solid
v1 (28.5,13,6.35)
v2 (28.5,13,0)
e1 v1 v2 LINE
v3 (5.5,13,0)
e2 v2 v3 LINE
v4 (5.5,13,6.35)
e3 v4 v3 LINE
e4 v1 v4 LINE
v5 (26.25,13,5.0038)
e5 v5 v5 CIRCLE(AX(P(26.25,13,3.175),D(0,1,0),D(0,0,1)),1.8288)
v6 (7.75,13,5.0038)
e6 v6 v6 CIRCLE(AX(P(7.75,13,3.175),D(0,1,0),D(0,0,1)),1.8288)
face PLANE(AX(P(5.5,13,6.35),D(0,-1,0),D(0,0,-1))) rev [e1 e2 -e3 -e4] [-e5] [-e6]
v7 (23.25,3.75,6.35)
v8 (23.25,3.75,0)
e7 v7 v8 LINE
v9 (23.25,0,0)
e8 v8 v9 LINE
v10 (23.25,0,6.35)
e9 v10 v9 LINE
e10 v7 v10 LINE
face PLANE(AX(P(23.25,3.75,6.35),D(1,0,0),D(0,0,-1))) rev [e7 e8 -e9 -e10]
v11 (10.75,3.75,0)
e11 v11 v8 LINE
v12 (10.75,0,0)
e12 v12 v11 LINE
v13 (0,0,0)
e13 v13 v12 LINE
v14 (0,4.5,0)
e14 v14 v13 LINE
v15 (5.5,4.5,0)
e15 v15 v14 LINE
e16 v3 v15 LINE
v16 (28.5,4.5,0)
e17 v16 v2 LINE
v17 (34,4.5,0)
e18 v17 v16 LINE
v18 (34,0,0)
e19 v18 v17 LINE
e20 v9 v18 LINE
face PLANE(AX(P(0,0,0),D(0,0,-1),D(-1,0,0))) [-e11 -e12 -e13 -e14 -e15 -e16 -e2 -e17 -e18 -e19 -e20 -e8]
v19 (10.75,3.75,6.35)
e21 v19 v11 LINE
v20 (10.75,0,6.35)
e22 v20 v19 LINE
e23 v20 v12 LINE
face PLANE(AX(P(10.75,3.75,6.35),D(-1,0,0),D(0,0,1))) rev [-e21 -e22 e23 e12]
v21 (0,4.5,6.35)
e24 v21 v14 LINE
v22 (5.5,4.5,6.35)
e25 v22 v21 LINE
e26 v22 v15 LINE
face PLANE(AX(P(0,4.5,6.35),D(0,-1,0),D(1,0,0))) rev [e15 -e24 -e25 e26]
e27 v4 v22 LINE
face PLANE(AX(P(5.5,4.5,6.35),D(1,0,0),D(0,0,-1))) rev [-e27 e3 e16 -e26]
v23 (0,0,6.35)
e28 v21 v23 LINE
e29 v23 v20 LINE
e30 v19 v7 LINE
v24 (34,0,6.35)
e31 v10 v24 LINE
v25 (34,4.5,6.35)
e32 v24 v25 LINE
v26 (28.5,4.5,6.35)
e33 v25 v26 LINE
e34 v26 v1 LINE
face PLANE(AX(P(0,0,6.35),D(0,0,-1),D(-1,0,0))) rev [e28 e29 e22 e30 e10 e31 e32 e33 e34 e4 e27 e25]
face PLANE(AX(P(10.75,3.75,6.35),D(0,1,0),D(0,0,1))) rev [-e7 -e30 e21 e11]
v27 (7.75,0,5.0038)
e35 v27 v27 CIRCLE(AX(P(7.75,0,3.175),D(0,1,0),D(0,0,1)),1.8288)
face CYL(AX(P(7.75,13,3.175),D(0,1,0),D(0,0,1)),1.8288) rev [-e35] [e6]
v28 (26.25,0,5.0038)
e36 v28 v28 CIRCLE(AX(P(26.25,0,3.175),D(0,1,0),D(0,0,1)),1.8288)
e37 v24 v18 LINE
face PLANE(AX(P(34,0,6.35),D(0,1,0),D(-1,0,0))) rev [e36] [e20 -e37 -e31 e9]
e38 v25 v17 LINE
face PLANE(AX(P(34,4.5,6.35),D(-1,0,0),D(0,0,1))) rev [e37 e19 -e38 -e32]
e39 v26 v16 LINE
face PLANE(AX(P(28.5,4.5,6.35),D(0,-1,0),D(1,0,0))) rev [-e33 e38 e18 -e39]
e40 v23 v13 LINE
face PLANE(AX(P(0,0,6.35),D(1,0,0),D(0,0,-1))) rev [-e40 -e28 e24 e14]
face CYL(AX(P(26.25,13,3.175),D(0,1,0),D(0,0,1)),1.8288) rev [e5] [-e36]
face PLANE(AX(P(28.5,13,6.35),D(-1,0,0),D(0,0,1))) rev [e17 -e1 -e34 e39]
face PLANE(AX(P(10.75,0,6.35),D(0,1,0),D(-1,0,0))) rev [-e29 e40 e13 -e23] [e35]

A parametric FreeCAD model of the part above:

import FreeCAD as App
import Part
import Sketcher
Q = App.Units.Quantity


def add_polygon(sketch, points):
    """Adds a closed chain of lines whose ends are joined by coincident constraints."""
    first, n = sketch.GeometryCount, len(points)
    for a, b in zip(points, points[1:] + points[:1]):
        sketch.addGeometry(Part.LineSegment(App.Vector(*a, 0), App.Vector(*b, 0)), False)
    for i in range(n):
        sketch.addConstraint(Sketcher.Constraint("Coincident", first + i, 2, first + (i + 1) % n, 1))

doc = App.newDocument("Part")
body = doc.addObject("PartDesign::Body", "Body")

# Sketch on XY plane
sketch1 = body.newObject("Sketcher::SketchObject", "Sketch")
sketch1.AttachmentSupport = (doc.getObject("XY_Plane"), [""])
sketch1.MapMode = "FlatFace"
add_polygon(sketch1, [(0, 4.5), (0, 0), (10.75, 0), (10.75, 3.75), (23.25, 3.75), (23.25, 0), (34, 0), (34, 4.5), (28.5, 4.5), (28.5, 13), (5.5, 13), (5.5, 4.5)])  # lines 0-11
sketch1.addConstraint(Sketcher.Constraint("Vertical", 0))
sketch1.addConstraint(Sketcher.Constraint("Horizontal", 1))
sketch1.addConstraint(Sketcher.Constraint("Vertical", 2))
sketch1.addConstraint(Sketcher.Constraint("Horizontal", 3))
sketch1.addConstraint(Sketcher.Constraint("Vertical", 4))
sketch1.addConstraint(Sketcher.Constraint("Horizontal", 5))
sketch1.addConstraint(Sketcher.Constraint("Vertical", 6))
sketch1.addConstraint(Sketcher.Constraint("Horizontal", 7))
sketch1.addConstraint(Sketcher.Constraint("Vertical", 8))
sketch1.addConstraint(Sketcher.Constraint("Horizontal", 9))
sketch1.addConstraint(Sketcher.Constraint("Vertical", 10))
sketch1.addConstraint(Sketcher.Constraint("Horizontal", 11))
sketch1.addConstraint(Sketcher.Constraint("Coincident", 0, 2, -1, 1))
sketch1.addConstraint(Sketcher.Constraint("PointOnObject", 4, 2, -1))
sketch1.addConstraint(Sketcher.Constraint("Horizontal", 7, 2, 10, 2))
sketch1.addConstraint(Sketcher.Constraint("Equal", 1, 5))
sketch1.addConstraint(Sketcher.Constraint("Equal", 7, 11))
sketch1.addConstraint(Sketcher.Constraint("DistanceX", 9, 2, 9, 1, Q("23 mm")))
sketch1.addConstraint(Sketcher.Constraint("DistanceX", 3, 1, 3, 2, Q("12.5 mm")))
sketch1.addConstraint(Sketcher.Constraint("DistanceX", 7, 2, 7, 1, Q("5.5 mm")))
sketch1.addConstraint(Sketcher.Constraint("DistanceY", 0, 2, 0, 1, Q("4.5 mm")))
sketch1.addConstraint(Sketcher.Constraint("DistanceY", 8, 1, 8, 2, Q("8.5 mm")))
sketch1.addConstraint(Sketcher.Constraint("DistanceY", 2, 1, 2, 2, Q("3.75 mm")))
pad1 = body.newObject("PartDesign::Pad", "Pad")
pad1.Profile = sketch1
pad1.Length = 6.35

# Sketch on XZ plane
sketch2 = body.newObject("Sketcher::SketchObject", "Sketch001")
sketch2.AttachmentSupport = (doc.getObject("XZ_Plane"), [""])
sketch2.MapMode = "FlatFace"
sketch2.AttachmentOffset = App.Placement(App.Vector(0, 0, -13), App.Rotation())
sketch2.addGeometry(Part.Circle(App.Vector(26.25, 3.175, 0), App.Vector(0, 0, 1), 1.8288), False)
sketch2.addGeometry(Part.Circle(App.Vector(7.75, 3.175, 0), App.Vector(0, 0, 1), 1.8288), False)
sketch2.addConstraint(Sketcher.Constraint("Equal", 0, 1))
sketch2.addConstraint(Sketcher.Constraint("Horizontal", 0, 3, 1, 3))
sketch2.addConstraint(Sketcher.Constraint("Diameter", 0, Q("3.6576 mm")))
sketch2.addConstraint(Sketcher.Constraint("DistanceX", 1, 3, 0, 3, Q("18.5 mm")))
sketch2.addConstraint(Sketcher.Constraint("DistanceX", -1, 1, 0, 3, Q("26.25 mm")))
sketch2.addConstraint(Sketcher.Constraint("DistanceY", -1, 1, 0, 3, Q("3.175 mm")))
doc.recompute()
hole = body.newObject("PartDesign::Hole", "Hole")
hole.Profile = sketch2
hole.ThreadType = "None"
hole.Diameter = 3.6576
hole.DepthType = "ThroughAll"
hole.Reversed = True

doc.recompute()
